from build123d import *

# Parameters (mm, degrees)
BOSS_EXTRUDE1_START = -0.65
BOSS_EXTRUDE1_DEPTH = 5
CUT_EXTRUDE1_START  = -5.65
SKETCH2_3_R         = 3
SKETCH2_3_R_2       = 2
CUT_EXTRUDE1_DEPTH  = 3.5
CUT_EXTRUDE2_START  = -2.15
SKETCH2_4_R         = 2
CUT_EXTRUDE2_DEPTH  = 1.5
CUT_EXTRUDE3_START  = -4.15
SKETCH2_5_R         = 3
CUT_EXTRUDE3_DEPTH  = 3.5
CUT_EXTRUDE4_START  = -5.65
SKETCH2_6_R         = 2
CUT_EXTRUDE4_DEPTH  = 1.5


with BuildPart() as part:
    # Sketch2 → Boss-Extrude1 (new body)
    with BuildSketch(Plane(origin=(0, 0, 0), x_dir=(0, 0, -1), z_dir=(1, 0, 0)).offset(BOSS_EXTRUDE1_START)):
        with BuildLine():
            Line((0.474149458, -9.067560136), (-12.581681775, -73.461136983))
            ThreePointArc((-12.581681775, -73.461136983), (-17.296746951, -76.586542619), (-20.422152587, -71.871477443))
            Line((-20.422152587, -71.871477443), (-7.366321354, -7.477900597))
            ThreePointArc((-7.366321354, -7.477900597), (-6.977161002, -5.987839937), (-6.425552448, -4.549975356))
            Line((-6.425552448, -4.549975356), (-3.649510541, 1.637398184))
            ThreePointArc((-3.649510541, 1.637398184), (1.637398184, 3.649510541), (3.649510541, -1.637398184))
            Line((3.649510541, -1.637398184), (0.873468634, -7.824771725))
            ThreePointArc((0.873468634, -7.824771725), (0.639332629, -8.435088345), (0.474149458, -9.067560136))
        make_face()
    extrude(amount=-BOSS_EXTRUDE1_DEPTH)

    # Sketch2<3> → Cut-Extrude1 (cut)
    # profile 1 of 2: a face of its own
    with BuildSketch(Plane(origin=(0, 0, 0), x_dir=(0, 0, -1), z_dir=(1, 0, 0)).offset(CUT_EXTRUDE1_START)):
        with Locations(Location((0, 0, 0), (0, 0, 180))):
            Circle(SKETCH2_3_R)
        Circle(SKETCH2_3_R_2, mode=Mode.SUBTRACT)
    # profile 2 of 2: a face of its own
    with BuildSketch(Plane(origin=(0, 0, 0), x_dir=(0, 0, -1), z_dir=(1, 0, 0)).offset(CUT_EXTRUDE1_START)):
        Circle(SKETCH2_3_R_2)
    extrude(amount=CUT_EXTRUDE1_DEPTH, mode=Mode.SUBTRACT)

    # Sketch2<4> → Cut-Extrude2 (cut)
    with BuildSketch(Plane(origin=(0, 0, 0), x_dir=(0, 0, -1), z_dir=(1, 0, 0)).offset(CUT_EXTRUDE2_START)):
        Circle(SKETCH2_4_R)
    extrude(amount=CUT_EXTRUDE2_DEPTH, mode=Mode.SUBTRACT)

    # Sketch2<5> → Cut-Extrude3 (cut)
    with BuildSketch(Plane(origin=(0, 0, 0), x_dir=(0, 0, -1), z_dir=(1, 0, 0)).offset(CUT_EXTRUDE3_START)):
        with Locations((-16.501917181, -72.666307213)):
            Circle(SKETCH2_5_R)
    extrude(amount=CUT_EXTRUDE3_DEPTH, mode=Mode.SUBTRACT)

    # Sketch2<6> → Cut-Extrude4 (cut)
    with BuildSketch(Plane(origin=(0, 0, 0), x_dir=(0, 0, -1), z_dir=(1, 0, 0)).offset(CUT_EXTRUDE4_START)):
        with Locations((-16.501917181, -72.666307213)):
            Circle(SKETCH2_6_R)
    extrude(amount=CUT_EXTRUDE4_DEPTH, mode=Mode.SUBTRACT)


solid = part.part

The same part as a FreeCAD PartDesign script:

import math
import FreeCAD as App
import Part
import Sketcher

V = App.Vector

doc = App.newDocument("Part")
body = doc.addObject("PartDesign::Body", "Body")

# Sketch on YZ plane
sketch1 = body.newObject("Sketcher::SketchObject", "Sketch")
sketch1.AttachmentSupport = (doc.getObject("YZ_Plane"), [""])
sketch1.MapMode = "FlatFace"
sketch1.AttachmentOffset = App.Placement(V(0, 0, -0.65), App.Rotation())
sketch1.addGeometry([
    Part.LineSegment(V(-73.461137, 12.581682, 0), V(-9.06756, -0.474149, 0)),  # 0
    Part.ArcOfCircle(Part.Circle(V(-10.239934, -6.256497, 0), V(0, 0, 1), 5.9), math.radians(65.836019), math.radians(78.538616)),  # 1
    Part.LineSegment(V(-7.824772, -0.873469, 0), V(-1.637398, -3.649511, 0)),  # 2
    Part.ArcOfCircle(Part.Circle(V(0, 0, 0), V(0, 0, 1), 4), math.radians(-114.163981), math.radians(65.836019)),  # 3
    Part.LineSegment(V(1.637398, 3.649511, 0), V(-4.549975, 6.425552, 0)),  # 4
    Part.ArcOfCircle(Part.Circle(V(-10.239934, -6.256497, 0), V(0, 0, 1), 13.9), math.radians(65.836019), math.radians(78.538616)),  # 5
    Part.LineSegment(V(-7.477901, 7.366321, 0), V(-71.871477, 20.422153, 0)),  # 6
    Part.ArcOfCircle(Part.Circle(V(-72.666307, 16.501917, 0), V(0, 0, 1), 4), math.radians(78.538616), math.radians(258.538616)),  # 7
], False)
sketch1.addConstraint([
    Sketcher.Constraint("Coincident", 0, 2, 1, 2),
    Sketcher.Constraint("Coincident", 1, 1, 2, 1),
    Sketcher.Constraint("Coincident", 2, 2, 3, 1),
    Sketcher.Constraint("Coincident", 3, 2, 4, 1),
    Sketcher.Constraint("Coincident", 4, 2, 5, 1),
    Sketcher.Constraint("Coincident", 5, 2, 6, 1),
    Sketcher.Constraint("Coincident", 6, 2, 7, 1),
    Sketcher.Constraint("Coincident", 7, 2, 0, 1),
    Sketcher.Constraint("Coincident", 3, 3, -1, 1),
    Sketcher.Constraint("Coincident", 5, 3, 1, 3),
    Sketcher.Constraint("Radius", 3, 4.0),
    Sketcher.Constraint("Radius", 7, 4.0),
    Sketcher.Constraint("Radius", 1, 5.9),
    Sketcher.Constraint("Radius", 5, 13.9),
    Sketcher.Constraint("DistanceX", 2, 2, -1, 1, 1.637398),
    Sketcher.Constraint("DistanceX", -1, 1, 3, 2, 1.637398),
    Sketcher.Constraint("DistanceX", 5, 2, -1, 1, 7.477901),
    Sketcher.Constraint("DistanceY", 0, 2, 4, 2, 6.899702),
    Sketcher.Constraint("DistanceX", 0, 2, -1, 1, 9.06756),
    Sketcher.Constraint("DistanceY", 0, 2, -1, 1, 0.474149),
    Sketcher.Constraint("DistanceX", 1, 1, -1, 1, 7.824772),
    Sketcher.Constraint("DistanceY", 1, 1, -1, 1, 0.873469),
    Sketcher.Constraint("DistanceY", -1, 1, 7, 2, 12.581682),
    Sketcher.Constraint("DistanceX", 7, 3, 6, 2, 0.79483),
    Sketcher.Constraint("DistanceY", 5, 2, 6, 2, 13.055831),
    Sketcher.Constraint("Distance", 0, 65.703786),
])
pad1 = body.newObject("PartDesign::Pad", "Pad")
pad1.Profile = sketch1
pad1.Length = 5
pad1.Reversed = True

# Sketch on YZ plane
sketch2 = body.newObject("Sketcher::SketchObject", "Sketch001")
sketch2.AttachmentSupport = (doc.getObject("YZ_Plane"), [""])
sketch2.MapMode = "FlatFace"
sketch2.AttachmentOffset = App.Placement(V(0, 0, -5.65), App.Rotation())
sketch2.addGeometry(Part.Circle(V(0, 0, 0), V(0, 0, 1), 3), False)
sketch2.addConstraint([
    Sketcher.Constraint("Coincident", 0, 3, -1, 1),
    Sketcher.Constraint("Diameter", 0, 6.0),
])
pocket1 = body.newObject("PartDesign::Pocket", "Pocket")
pocket1.Profile = sketch2
pocket1.Length = 3.5
pocket1.Reversed = True

# Sketch on YZ plane
sketch3 = body.newObject("Sketcher::SketchObject", "Sketch002")
sketch3.AttachmentSupport = (doc.getObject("YZ_Plane"), [""])
sketch3.MapMode = "FlatFace"
sketch3.AttachmentOffset = App.Placement(V(0, 0, -2.15), App.Rotation())
sketch3.addGeometry(Part.Circle(V(0, 0, 0), V(0, 0, 1), 2), False)
sketch3.addConstraint([
    Sketcher.Constraint("Coincident", 0, 3, -1, 1),
    Sketcher.Constraint("Diameter", 0, 4.0),
])
pocket2 = body.newObject("PartDesign::Pocket", "Pocket001")
pocket2.Profile = sketch3
pocket2.Length = 1.5
pocket2.Reversed = True

# Sketch on YZ plane
sketch4 = body.newObject("Sketcher::SketchObject", "Sketch003")
sketch4.AttachmentSupport = (doc.getObject("YZ_Plane"), [""])
sketch4.MapMode = "FlatFace"
sketch4.AttachmentOffset = App.Placement(V(0, 0, -4.15), App.Rotation())
sketch4.addGeometry(Part.Circle(V(-72.666307, 16.501917, 0), V(0, 0, 1), 3), False)
sketch4.addConstraint([
    Sketcher.Constraint("Diameter", 0, 6.0),
    Sketcher.Constraint("DistanceX", 0, 3, -1, 1, 72.666307),
    Sketcher.Constraint("DistanceY", -1, 1, 0, 3, 16.501917),
])
pocket3 = body.newObject("PartDesign::Pocket", "Pocket002")
pocket3.Profile = sketch4
pocket3.Length = 3.5
pocket3.Reversed = True

# Sketch on YZ plane
sketch5 = body.newObject("Sketcher::SketchObject", "Sketch004")
sketch5.AttachmentSupport = (doc.getObject("YZ_Plane"), [""])
sketch5.MapMode = "FlatFace"
sketch5.AttachmentOffset = App.Placement(V(0, 0, -5.65), App.Rotation())
sketch5.addGeometry(Part.Circle(V(-72.666307, 16.501917, 0), V(0, 0, 1), 2), False)
sketch5.addConstraint([
    Sketcher.Constraint("Diameter", 0, 4.0),
    Sketcher.Constraint("DistanceX", 0, 3, -1, 1, 72.666307),
    Sketcher.Constraint("DistanceY", -1, 1, 0, 3, 16.501917),
])
pocket4 = body.newObject("PartDesign::Pocket", "Pocket003")
pocket4.Profile = sketch5
pocket4.Length = 1.5
pocket4.Reversed = True

doc.recompute()
